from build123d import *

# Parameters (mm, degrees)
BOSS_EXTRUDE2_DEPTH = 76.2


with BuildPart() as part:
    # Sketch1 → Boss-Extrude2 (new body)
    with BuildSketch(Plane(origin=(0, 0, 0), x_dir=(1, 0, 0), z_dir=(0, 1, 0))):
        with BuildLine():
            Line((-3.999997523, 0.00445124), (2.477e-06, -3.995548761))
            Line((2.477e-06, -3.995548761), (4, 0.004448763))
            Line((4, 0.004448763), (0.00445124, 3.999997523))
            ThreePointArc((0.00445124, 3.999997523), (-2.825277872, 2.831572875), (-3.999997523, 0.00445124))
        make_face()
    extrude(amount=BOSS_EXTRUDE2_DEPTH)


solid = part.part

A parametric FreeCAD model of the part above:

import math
import FreeCAD as App
import Part
import Sketcher

V = App.Vector
Q = App.Units.Quantity

doc = App.newDocument("Part")
body = doc.addObject("PartDesign::Body", "Body")

# Sketch on XZ plane
sketch1 = doc.addObject("Sketcher::SketchObject", "Sketch")
body.addObject(sketch1)
sketch1.AttachmentSupport = (doc.XZ_Plane, [""])
sketch1.MapMode = "FlatFace"
sketch1.addGeometry(Part.LineSegment(V(-3.999998, -0.004451, 0), V(0.000002, 3.995549, 0)), False)
sketch1.addGeometry(Part.LineSegment(V(0.000002, 3.995549, 0), V(4, -0.004449, 0)), False)
sketch1.addGeometry(Part.LineSegment(V(4, -0.004449, 0), V(0.004451, -3.999998, 0)), False)
sketch1.addGeometry(Part.ArcOfCircle(Part.Circle(V(0, 0, 0), V(0, 0, 1), 4), math.radians(-179.936241), math.radians(-89.936241)), False)
sketch1.addConstraint(Sketcher.Constraint("Coincident", 0, 2, 1, 1))
sketch1.addConstraint(Sketcher.Constraint("Coincident", 1, 2, 2, 1))
sketch1.addConstraint(Sketcher.Constraint("Coincident", 2, 2, 3, 2))
sketch1.addConstraint(Sketcher.Constraint("Coincident", 3, 1, 0, 1))
sketch1.addConstraint(Sketcher.Constraint("Coincident", 3, 3, -1, 1))
sketch1.addConstraint(Sketcher.Constraint("Symmetric", 1, 2, 3, 1, -2))
sketch1.addConstraint(Sketcher.Constraint("Perpendicular", 0, 1))
sketch1.addConstraint(Sketcher.Constraint("Perpendicular", 1, 2))
sketch1.addConstraint(Sketcher.Constraint("Radius", 3, 4.0))
sketch1.addConstraint(Sketcher.Constraint("Angle", 0, Q("45 deg")))
sketch1.addConstraint(Sketcher.Constraint("Distance", 2, 5.650559))
pad1 = doc.addObject("PartDesign::Pad", "Pad")
body.addObject(pad1)
pad1.Profile = sketch1
pad1.Length = 76.2
pad1.Reversed = True

doc.recompute()
